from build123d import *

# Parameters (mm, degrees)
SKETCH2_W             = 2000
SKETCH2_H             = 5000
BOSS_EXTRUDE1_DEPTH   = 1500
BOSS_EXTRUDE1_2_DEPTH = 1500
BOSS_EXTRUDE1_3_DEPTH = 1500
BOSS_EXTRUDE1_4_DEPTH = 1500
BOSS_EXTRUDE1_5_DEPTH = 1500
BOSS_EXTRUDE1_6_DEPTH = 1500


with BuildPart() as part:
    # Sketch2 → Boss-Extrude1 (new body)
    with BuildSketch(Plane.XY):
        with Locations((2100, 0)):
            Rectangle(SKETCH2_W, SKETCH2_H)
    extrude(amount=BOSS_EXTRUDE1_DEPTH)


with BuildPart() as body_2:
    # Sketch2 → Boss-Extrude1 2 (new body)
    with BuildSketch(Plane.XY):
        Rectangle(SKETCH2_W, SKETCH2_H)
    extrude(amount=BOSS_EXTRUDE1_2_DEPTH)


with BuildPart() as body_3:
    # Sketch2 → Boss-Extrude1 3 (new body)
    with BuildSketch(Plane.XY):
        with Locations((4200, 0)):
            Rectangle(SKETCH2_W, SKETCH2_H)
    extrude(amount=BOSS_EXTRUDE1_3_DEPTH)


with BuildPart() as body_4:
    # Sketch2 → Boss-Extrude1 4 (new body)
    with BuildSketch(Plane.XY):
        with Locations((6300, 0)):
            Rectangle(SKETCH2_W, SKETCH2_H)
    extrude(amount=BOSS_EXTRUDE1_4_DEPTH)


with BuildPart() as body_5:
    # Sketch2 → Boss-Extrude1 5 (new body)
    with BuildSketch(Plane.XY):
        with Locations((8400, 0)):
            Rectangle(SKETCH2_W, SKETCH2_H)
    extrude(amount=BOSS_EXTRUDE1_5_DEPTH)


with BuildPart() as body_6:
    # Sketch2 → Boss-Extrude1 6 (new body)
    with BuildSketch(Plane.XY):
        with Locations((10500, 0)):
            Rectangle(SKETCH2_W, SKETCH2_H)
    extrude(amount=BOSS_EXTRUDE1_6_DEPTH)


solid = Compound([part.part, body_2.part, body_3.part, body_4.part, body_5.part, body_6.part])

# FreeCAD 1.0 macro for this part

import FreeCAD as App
import Part
import Sketcher

V = App.Vector
Q = App.Units.Quantity


def add_polygon(sketch, points):
    """Adds a closed chain of lines whose ends are joined by coincident constraints."""
    first, n = sketch.GeometryCount, len(points)
    for a, b in zip(points, points[1:] + points[:1]):
        sketch.addGeometry(Part.LineSegment(App.Vector(*a, 0), App.Vector(*b, 0)), False)
    for i in range(n):
        sketch.addConstraint(Sketcher.Constraint("Coincident", first + i, 2, first + (i + 1) % n, 1))

doc = App.newDocument("Part")
body = doc.addObject("PartDesign::Body", "Body")

# Sketch on XY plane
sketch1 = body.newObject("Sketcher::SketchObject", "Sketch")
sketch1.AttachmentSupport = (doc.getObject("XY_Plane"), [""])
sketch1.MapMode = "FlatFace"
add_polygon(sketch1, [(1100, 2500), (1100, -2500), (3100, -2500), (3100, 2500)])  # lines 0-3
sketch1.addConstraint([
    Sketcher.Constraint("Vertical", 0),
    Sketcher.Constraint("Horizontal", 1),
    Sketcher.Constraint("Vertical", 2),
    Sketcher.Constraint("Horizontal", 3),
    Sketcher.Constraint("DistanceX", 1, 1, 1, 2, Q("2000 mm")),
    Sketcher.Constraint("DistanceY", 0, 2, 0, 1, Q("5000 mm")),
    Sketcher.Constraint("DistanceX", -1, 1, 0, 2, Q("1100 mm")),
    Sketcher.Constraint("DistanceY", 0, 2, -1, 1, Q("2500 mm")),
])
pad1 = body.newObject("PartDesign::Pad", "Pad")
pad1.Profile = sketch1
pad1.Length = 1500
body2 = doc.addObject("PartDesign::Body", "Body001")

# Sketch on XY plane
sketch2 = body2.newObject("Sketcher::SketchObject", "Sketch001")
sketch2.AttachmentSupport = (doc.getObject("XY_Plane001"), [""])
sketch2.MapMode = "FlatFace"
add_polygon(sketch2, [(-1000, 2500), (-1000, -2500), (1000, -2500), (1000, 2500)])  # lines 0-3
sketch2.addConstraint([
    Sketcher.Constraint("Vertical", 0),
    Sketcher.Constraint("Horizontal", 1),
    Sketcher.Constraint("Vertical", 2),
    Sketcher.Constraint("Horizontal", 3),
    Sketcher.Constraint("Symmetric", 0, 2, 2, 2, -1, 1),
    Sketcher.Constraint("DistanceX", 1, 1, 1, 2, Q("2000 mm")),
    Sketcher.Constraint("DistanceY", 0, 2, 0, 1, Q("5000 mm")),
])
pad2 = body2.newObject("PartDesign::Pad", "Pad001")
pad2.Profile = sketch2
pad2.Length = 1500
body3 = doc.addObject("PartDesign::Body", "Body002")

# Sketch on XY plane
sketch3 = body3.newObject("Sketcher::SketchObject", "Sketch002")
sketch3.AttachmentSupport = (doc.getObject("XY_Plane002"), [""])
sketch3.MapMode = "FlatFace"
add_polygon(sketch3, [(3200, 2500), (3200, -2500), (5200, -2500), (5200, 2500)])  # lines 0-3
sketch3.addConstraint([
    Sketcher.Constraint("Vertical", 0),
    Sketcher.Constraint("Horizontal", 1),
    Sketcher.Constraint("Vertical", 2),
    Sketcher.Constraint("Horizontal", 3),
    Sketcher.Constraint("DistanceX", 1, 1, 1, 2, Q("2000 mm")),
    Sketcher.Constraint("DistanceY", 0, 2, 0, 1, Q("5000 mm")),
    Sketcher.Constraint("DistanceX", -1, 1, 0, 2, Q("3200 mm")),
    Sketcher.Constraint("DistanceY", 0, 2, -1, 1, Q("2500 mm")),
])
pad3 = body3.newObject("PartDesign::Pad", "Pad002")
pad3.Profile = sketch3
pad3.Length = 1500
body4 = doc.addObject("PartDesign::Body", "Body003")

# Sketch on XY plane
sketch4 = body4.newObject("Sketcher::SketchObject", "Sketch003")
sketch4.AttachmentSupport = (doc.getObject("XY_Plane003"), [""])
sketch4.MapMode = "FlatFace"
add_polygon(sketch4, [(5300, 2500), (5300, -2500), (7300, -2500), (7300, 2500)])  # lines 0-3
sketch4.addConstraint([
    Sketcher.Constraint("Vertical", 0),
    Sketcher.Constraint("Horizontal", 1),
    Sketcher.Constraint("Vertical", 2),
    Sketcher.Constraint("Horizontal", 3),
    Sketcher.Constraint("DistanceX", 1, 1, 1, 2, Q("2000 mm")),
    Sketcher.Constraint("DistanceY", 0, 2, 0, 1, Q("5000 mm")),
    Sketcher.Constraint("DistanceX", -1, 1, 0, 2, Q("5300 mm")),
    Sketcher.Constraint("DistanceY", 0, 2, -1, 1, Q("2500 mm")),
])
pad4 = body4.newObject("PartDesign::Pad", "Pad003")
pad4.Profile = sketch4
pad4.Length = 1500
body5 = doc.addObject("PartDesign::Body", "Body004")

# Sketch on XY plane
sketch5 = body5.newObject("Sketcher::SketchObject", "Sketch004")
sketch5.AttachmentSupport = (doc.getObject("XY_Plane004"), [""])
sketch5.MapMode = "FlatFace"
add_polygon(sketch5, [(7400, 2500), (7400, -2500), (9400, -2500), (9400, 2500)])  # lines 0-3
sketch5.addConstraint([
    Sketcher.Constraint("Vertical", 0),
    Sketcher.Constraint("Horizontal", 1),
    Sketcher.Constraint("Vertical", 2),
    Sketcher.Constraint("Horizontal", 3),
    Sketcher.Constraint("DistanceX", 1, 1, 1, 2, Q("2000 mm")),
    Sketcher.Constraint("DistanceY", 0, 2, 0, 1, Q("5000 mm")),
    Sketcher.Constraint("DistanceX", -1, 1, 0, 2, Q("7400 mm")),
    Sketcher.Constraint("DistanceY", 0, 2, -1, 1, Q("2500 mm")),
])
pad5 = body5.newObject("PartDesign::Pad", "Pad004")
pad5.Profile = sketch5
pad5.Length = 1500
body6 = doc.addObject("PartDesign::Body", "Body005")

# Sketch on XY plane
sketch6 = body6.newObject("Sketcher::SketchObject", "Sketch005")
sketch6.AttachmentSupport = (doc.getObject("XY_Plane005"), [""])
sketch6.MapMode = "FlatFace"
add_polygon(sketch6, [(9500, 2500), (9500, -2500), (11500, -2500), (11500, 2500)])  # lines 0-3
sketch6.addConstraint([
    Sketcher.Constraint("Vertical", 0),
    Sketcher.Constraint("Horizontal", 1),
    Sketcher.Constraint("Vertical", 2),
    Sketcher.Constraint("Horizontal", 3),
    Sketcher.Constraint("DistanceX", 1, 1, 1, 2, Q("2000 mm")),
    Sketcher.Constraint("DistanceY", 0, 2, 0, 1, Q("5000 mm")),
    Sketcher.Constraint("DistanceX", -1, 1, 0, 2, Q("9500 mm")),
    Sketcher.Constraint("DistanceY", 0, 2, -1, 1, Q("2500 mm")),
])
pad6 = body6.newObject("PartDesign::Pad", "Pad005")
pad6.Profile = sketch6
pad6.Length = 1500

doc.recompute()
